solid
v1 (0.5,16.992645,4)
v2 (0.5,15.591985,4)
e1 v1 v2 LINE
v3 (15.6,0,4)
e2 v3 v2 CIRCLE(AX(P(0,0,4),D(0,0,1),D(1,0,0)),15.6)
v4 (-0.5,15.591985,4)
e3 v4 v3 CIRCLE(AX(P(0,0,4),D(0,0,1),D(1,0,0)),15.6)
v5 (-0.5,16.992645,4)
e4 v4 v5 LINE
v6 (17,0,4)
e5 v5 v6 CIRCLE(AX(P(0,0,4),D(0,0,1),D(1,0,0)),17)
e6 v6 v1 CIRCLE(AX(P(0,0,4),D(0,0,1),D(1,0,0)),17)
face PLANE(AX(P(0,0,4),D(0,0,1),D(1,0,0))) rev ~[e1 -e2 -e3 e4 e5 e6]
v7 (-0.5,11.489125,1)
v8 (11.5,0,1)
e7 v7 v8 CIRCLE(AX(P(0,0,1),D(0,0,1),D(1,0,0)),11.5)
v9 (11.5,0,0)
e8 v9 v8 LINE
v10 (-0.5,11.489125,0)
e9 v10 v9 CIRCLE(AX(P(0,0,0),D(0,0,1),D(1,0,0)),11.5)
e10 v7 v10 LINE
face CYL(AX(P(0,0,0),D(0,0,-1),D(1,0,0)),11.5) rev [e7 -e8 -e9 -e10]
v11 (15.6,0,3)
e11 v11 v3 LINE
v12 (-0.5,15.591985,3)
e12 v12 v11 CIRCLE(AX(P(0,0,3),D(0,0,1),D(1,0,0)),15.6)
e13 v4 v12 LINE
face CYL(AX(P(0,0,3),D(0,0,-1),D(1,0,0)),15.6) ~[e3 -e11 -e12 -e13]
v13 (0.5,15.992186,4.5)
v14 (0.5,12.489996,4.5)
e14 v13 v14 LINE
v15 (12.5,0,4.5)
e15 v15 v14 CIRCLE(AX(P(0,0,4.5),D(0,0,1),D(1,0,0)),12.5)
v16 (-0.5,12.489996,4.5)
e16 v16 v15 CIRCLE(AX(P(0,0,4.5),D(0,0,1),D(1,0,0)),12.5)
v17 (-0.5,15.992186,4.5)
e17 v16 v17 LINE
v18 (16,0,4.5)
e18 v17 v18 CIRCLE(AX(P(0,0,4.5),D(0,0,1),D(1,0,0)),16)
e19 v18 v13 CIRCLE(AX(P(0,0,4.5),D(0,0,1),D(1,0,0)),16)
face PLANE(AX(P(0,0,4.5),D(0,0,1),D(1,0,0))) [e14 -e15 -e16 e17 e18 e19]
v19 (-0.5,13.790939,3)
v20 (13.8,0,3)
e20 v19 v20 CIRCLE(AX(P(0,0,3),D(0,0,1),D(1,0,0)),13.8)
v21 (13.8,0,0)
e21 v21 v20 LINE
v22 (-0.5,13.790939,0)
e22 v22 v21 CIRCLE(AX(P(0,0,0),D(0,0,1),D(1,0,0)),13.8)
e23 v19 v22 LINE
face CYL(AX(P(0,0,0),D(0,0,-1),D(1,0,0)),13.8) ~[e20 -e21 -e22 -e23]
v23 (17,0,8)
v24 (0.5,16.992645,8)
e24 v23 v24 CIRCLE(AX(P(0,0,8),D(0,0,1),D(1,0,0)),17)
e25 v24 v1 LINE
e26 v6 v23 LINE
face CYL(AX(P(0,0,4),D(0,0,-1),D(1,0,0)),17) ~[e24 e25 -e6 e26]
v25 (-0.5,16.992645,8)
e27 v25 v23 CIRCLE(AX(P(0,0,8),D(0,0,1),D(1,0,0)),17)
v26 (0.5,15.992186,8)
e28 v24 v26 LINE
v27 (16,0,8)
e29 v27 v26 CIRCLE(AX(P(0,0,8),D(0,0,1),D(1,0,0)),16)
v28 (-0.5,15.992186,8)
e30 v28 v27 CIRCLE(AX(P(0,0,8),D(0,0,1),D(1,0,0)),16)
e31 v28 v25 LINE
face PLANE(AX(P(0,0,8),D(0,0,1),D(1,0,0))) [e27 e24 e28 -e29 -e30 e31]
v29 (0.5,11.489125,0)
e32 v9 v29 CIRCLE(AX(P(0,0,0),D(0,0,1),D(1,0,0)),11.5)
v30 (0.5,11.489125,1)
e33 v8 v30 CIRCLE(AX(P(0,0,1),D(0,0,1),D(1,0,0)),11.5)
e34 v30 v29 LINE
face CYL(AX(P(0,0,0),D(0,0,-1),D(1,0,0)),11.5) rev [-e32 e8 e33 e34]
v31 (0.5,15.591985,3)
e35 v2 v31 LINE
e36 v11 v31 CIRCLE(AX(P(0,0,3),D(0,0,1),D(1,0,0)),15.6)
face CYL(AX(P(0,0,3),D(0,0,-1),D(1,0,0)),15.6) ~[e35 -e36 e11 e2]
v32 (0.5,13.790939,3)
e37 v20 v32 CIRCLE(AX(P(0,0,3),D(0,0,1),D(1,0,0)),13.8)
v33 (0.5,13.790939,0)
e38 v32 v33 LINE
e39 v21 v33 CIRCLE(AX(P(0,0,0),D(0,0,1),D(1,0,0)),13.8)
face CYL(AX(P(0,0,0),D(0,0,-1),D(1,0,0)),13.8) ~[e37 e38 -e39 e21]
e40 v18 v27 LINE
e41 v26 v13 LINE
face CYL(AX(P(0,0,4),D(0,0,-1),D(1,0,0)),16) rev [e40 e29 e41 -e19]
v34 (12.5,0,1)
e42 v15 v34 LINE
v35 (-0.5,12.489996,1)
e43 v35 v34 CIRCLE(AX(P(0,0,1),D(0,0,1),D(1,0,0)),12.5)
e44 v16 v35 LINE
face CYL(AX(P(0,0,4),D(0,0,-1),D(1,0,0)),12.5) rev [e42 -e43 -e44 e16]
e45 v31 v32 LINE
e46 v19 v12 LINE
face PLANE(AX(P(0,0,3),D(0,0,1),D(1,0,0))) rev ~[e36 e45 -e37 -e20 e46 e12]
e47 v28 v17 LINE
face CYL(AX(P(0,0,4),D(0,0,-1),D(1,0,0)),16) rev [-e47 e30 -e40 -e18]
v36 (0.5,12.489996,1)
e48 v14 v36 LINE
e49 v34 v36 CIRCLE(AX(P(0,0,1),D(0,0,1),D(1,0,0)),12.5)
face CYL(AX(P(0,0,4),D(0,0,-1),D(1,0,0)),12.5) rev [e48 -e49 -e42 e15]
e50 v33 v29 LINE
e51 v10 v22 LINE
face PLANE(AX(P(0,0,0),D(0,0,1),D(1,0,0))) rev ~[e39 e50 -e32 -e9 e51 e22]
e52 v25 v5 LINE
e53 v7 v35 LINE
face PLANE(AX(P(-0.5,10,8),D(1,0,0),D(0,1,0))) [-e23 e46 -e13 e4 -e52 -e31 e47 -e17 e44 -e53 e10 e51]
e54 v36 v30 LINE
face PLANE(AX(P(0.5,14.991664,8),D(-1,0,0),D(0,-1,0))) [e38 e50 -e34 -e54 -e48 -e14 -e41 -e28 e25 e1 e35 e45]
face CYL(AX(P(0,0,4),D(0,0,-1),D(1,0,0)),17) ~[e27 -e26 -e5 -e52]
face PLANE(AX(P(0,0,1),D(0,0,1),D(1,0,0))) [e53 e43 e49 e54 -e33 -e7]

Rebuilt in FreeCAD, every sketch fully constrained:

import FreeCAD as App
import Part
import Sketcher

V = App.Vector
Q = App.Units.Quantity


def add_polygon(sketch, points):
    """Adds a closed chain of lines whose ends are joined by coincident constraints."""
    first, n = sketch.GeometryCount, len(points)
    for a, b in zip(points, points[1:] + points[:1]):
        sketch.addGeometry(Part.LineSegment(App.Vector(*a, 0), App.Vector(*b, 0)), False)
    for i in range(n):
        sketch.addConstraint(Sketcher.Constraint("Coincident", first + i, 2, first + (i + 1) % n, 1))

doc = App.newDocument("Part")
params = doc.addObject("Spreadsheet::Sheet", "Params")
for row, (alias, value) in enumerate([
    ("sketch1_diameter", "25 mm"),
    ("sketch1_diameter2", "23 mm"),
    ("pad1_length", "1 mm"),
    ("sketch2_diameter", "25 mm"),
    ("sketch2_diameter2", "27.6 mm"),
    ("pad2_length", "3 mm"),
    ("sketch3_diameter", "25 mm"),
    ("sketch3_diameter2", "31.2 mm"),
    ("pad3_length", "1 mm"),
    ("sketch4_diameter", "32 mm"),
    ("sketch4_diameter2", "25 mm"),
    ("pad4_length", "0.5 mm"),
    ("sketch5_diameter", "34 mm"),
    ("sketch5_diameter2", "32 mm"),
    ("pad5_length", "4 mm"),
    ("sketch6_width", "1 mm"),
    ("sketch6_height", "10 mm"),
    ("pocket1_length", "10 mm"),
], start=1):
    params.set(f"A{row}", alias)
    params.set(f"B{row}", "=" + value)
    params.setAlias(f"B{row}", alias)

body = doc.addObject("PartDesign::Body", "Body")

# Sketch on XY plane
sketch1 = doc.addObject("Sketcher::SketchObject", "Sketch")
body.addObject(sketch1)
sketch1.AttachmentSupport = (doc.XY_Plane, [""])
sketch1.MapMode = "FlatFace"
sketch1.addGeometry([
    Part.Circle(V(0, 0, 0), V(0, 0, 1), 12),
    Part.Circle(V(0, 0, 0), V(0, 0, 1), 12),
], False)
sketch1.addConstraint([
    Sketcher.Constraint("Coincident", 0, 3, -1, 1),
    Sketcher.Constraint("Coincident", 1, 3, -1, 1),
    Sketcher.Constraint("Diameter", 0, Q("25 mm")),
    Sketcher.Constraint("Diameter", 1, Q("23 mm")),
])
sketch1.setExpression("Constraints[2]", "Params.sketch1_diameter")
sketch1.setExpression("Constraints[3]", "Params.sketch1_diameter2")
pad1 = doc.addObject("PartDesign::Pad", "Pad")
body.addObject(pad1)
pad1.Profile = sketch1
pad1.setExpression("Length", "Params.pad1_length")

# Sketch on XY plane
sketch2 = doc.addObject("Sketcher::SketchObject", "Sketch001")
body.addObject(sketch2)
sketch2.AttachmentSupport = (doc.XY_Plane, [""])
sketch2.MapMode = "FlatFace"
sketch2.addGeometry([
    Part.Circle(V(0, 0, 0), V(0, 0, 1), 14),
    Part.Circle(V(0, 0, 0), V(0, 0, 1), 12),
], False)
sketch2.addConstraint([
    Sketcher.Constraint("Coincident", 0, 3, -1, 1),
    Sketcher.Constraint("Coincident", 1, 3, -1, 1),
    Sketcher.Constraint("Diameter", 1, Q("25 mm")),
    Sketcher.Constraint("Diameter", 0, Q("27.6 mm")),
])
sketch2.setExpression("Constraints[2]", "Params.sketch2_diameter")
sketch2.setExpression("Constraints[3]", "Params.sketch2_diameter2")
pad2 = doc.addObject("PartDesign::Pad", "Pad001")
body.addObject(pad2)
pad2.Profile = sketch2
pad2.setExpression("Length", "Params.pad2_length")

# Sketch on XY plane
sketch3 = doc.addObject("Sketcher::SketchObject", "Sketch002")
body.addObject(sketch3)
sketch3.AttachmentSupport = (doc.XY_Plane, [""])
sketch3.MapMode = "FlatFace"
sketch3.AttachmentOffset = App.Placement(V(0, 0, 3), App.Rotation())
sketch3.addGeometry([
    Part.Circle(V(0, 0, 0), V(0, 0, 1), 16),
    Part.Circle(V(0, 0, 0), V(0, 0, 1), 12),
], False)
sketch3.addConstraint([
    Sketcher.Constraint("Coincident", 0, 3, -1, 1),
    Sketcher.Constraint("Coincident", 1, 3, -1, 1),
    Sketcher.Constraint("Diameter", 1, Q("25 mm")),
    Sketcher.Constraint("Diameter", 0, Q("31.2 mm")),
])
sketch3.setExpression("Constraints[2]", "Params.sketch3_diameter")
sketch3.setExpression("Constraints[3]", "Params.sketch3_diameter2")
pad3 = doc.addObject("PartDesign::Pad", "Pad002")
body.addObject(pad3)
pad3.Profile = sketch3
pad3.setExpression("Length", "Params.pad3_length")

# Sketch on XY plane
sketch4 = doc.addObject("Sketcher::SketchObject", "Sketch003")
body.addObject(sketch4)
sketch4.AttachmentSupport = (doc.XY_Plane, [""])
sketch4.MapMode = "FlatFace"
sketch4.AttachmentOffset = App.Placement(V(0, 0, 4), App.Rotation())
sketch4.addGeometry([
    Part.Circle(V(0, 0, 0), V(0, 0, 1), 16),
    Part.Circle(V(0, 0, 0), V(0, 0, 1), 12),
], False)
sketch4.addConstraint([
    Sketcher.Constraint("Coincident", 0, 3, -1, 1),
    Sketcher.Constraint("Coincident", 1, 3, -1, 1),
    Sketcher.Constraint("Diameter", 0, Q("32 mm")),
    Sketcher.Constraint("Diameter", 1, Q("25 mm")),
])
sketch4.setExpression("Constraints[2]", "Params.sketch4_diameter")
sketch4.setExpression("Constraints[3]", "Params.sketch4_diameter2")
pad4 = doc.addObject("PartDesign::Pad", "Pad003")
body.addObject(pad4)
pad4.Profile = sketch4
pad4.setExpression("Length", "Params.pad4_length")

# Sketch on XY plane
sketch5 = doc.addObject("Sketcher::SketchObject", "Sketch004")
body.addObject(sketch5)
sketch5.AttachmentSupport = (doc.XY_Plane, [""])
sketch5.MapMode = "FlatFace"
sketch5.AttachmentOffset = App.Placement(V(0, 0, 4), App.Rotation())
sketch5.addGeometry([
    Part.Circle(V(0, 0, 0), V(0, 0, 1), 17),
    Part.Circle(V(0, 0, 0), V(0, 0, 1), 16),
], False)
sketch5.addConstraint([
    Sketcher.Constraint("Coincident", 0, 3, -1, 1),
    Sketcher.Constraint("Coincident", 1, 3, -1, 1),
    Sketcher.Constraint("Diameter", 0, Q("34 mm")),
    Sketcher.Constraint("Diameter", 1, Q("32 mm")),
])
sketch5.setExpression("Constraints[2]", "Params.sketch5_diameter")
sketch5.setExpression("Constraints[3]", "Params.sketch5_diameter2")
pad5 = doc.addObject("PartDesign::Pad", "Pad004")
body.addObject(pad5)
pad5.Profile = sketch5
pad5.setExpression("Length", "Params.pad5_length")

# Sketch on XY plane
sketch6 = doc.addObject("Sketcher::SketchObject", "Sketch005")
body.addObject(sketch6)
sketch6.AttachmentSupport = (doc.XY_Plane, [""])
sketch6.MapMode = "FlatFace"
sketch6.AttachmentOffset = App.Placement(V(0, 0, 8), App.Rotation())
add_polygon(sketch6, [(-0.5, 10), (0.5, 10), (0.5, 20), (-0.5, 20)])  # lines 0-3
sketch6.addConstraint([
    Sketcher.Constraint("Horizontal", 0),
    Sketcher.Constraint("Vertical", 1),
    Sketcher.Constraint("Horizontal", 2),
    Sketcher.Constraint("Vertical", 3),
    Sketcher.Constraint("DistanceX", 0, 1, 0, 2, Q("1 mm")),
    Sketcher.Constraint("DistanceY", 1, 1, 1, 2, Q("10 mm")),
    Sketcher.Constraint("DistanceY", -1, 1, 0, 2, Q("10 mm")),
    Sketcher.Constraint("DistanceX", -1, 1, 0, 2, Q("0.5 mm")),
])
sketch6.setExpression("Constraints[8]", "Params.sketch6_width")
sketch6.setExpression("Constraints[9]", "Params.sketch6_height")
pocket1 = doc.addObject("PartDesign::Pocket", "Pocket")
body.addObject(pocket1)
pocket1.Profile = sketch6
pocket1.setExpression("Length", "Params.pocket1_length")

doc.recompute()
